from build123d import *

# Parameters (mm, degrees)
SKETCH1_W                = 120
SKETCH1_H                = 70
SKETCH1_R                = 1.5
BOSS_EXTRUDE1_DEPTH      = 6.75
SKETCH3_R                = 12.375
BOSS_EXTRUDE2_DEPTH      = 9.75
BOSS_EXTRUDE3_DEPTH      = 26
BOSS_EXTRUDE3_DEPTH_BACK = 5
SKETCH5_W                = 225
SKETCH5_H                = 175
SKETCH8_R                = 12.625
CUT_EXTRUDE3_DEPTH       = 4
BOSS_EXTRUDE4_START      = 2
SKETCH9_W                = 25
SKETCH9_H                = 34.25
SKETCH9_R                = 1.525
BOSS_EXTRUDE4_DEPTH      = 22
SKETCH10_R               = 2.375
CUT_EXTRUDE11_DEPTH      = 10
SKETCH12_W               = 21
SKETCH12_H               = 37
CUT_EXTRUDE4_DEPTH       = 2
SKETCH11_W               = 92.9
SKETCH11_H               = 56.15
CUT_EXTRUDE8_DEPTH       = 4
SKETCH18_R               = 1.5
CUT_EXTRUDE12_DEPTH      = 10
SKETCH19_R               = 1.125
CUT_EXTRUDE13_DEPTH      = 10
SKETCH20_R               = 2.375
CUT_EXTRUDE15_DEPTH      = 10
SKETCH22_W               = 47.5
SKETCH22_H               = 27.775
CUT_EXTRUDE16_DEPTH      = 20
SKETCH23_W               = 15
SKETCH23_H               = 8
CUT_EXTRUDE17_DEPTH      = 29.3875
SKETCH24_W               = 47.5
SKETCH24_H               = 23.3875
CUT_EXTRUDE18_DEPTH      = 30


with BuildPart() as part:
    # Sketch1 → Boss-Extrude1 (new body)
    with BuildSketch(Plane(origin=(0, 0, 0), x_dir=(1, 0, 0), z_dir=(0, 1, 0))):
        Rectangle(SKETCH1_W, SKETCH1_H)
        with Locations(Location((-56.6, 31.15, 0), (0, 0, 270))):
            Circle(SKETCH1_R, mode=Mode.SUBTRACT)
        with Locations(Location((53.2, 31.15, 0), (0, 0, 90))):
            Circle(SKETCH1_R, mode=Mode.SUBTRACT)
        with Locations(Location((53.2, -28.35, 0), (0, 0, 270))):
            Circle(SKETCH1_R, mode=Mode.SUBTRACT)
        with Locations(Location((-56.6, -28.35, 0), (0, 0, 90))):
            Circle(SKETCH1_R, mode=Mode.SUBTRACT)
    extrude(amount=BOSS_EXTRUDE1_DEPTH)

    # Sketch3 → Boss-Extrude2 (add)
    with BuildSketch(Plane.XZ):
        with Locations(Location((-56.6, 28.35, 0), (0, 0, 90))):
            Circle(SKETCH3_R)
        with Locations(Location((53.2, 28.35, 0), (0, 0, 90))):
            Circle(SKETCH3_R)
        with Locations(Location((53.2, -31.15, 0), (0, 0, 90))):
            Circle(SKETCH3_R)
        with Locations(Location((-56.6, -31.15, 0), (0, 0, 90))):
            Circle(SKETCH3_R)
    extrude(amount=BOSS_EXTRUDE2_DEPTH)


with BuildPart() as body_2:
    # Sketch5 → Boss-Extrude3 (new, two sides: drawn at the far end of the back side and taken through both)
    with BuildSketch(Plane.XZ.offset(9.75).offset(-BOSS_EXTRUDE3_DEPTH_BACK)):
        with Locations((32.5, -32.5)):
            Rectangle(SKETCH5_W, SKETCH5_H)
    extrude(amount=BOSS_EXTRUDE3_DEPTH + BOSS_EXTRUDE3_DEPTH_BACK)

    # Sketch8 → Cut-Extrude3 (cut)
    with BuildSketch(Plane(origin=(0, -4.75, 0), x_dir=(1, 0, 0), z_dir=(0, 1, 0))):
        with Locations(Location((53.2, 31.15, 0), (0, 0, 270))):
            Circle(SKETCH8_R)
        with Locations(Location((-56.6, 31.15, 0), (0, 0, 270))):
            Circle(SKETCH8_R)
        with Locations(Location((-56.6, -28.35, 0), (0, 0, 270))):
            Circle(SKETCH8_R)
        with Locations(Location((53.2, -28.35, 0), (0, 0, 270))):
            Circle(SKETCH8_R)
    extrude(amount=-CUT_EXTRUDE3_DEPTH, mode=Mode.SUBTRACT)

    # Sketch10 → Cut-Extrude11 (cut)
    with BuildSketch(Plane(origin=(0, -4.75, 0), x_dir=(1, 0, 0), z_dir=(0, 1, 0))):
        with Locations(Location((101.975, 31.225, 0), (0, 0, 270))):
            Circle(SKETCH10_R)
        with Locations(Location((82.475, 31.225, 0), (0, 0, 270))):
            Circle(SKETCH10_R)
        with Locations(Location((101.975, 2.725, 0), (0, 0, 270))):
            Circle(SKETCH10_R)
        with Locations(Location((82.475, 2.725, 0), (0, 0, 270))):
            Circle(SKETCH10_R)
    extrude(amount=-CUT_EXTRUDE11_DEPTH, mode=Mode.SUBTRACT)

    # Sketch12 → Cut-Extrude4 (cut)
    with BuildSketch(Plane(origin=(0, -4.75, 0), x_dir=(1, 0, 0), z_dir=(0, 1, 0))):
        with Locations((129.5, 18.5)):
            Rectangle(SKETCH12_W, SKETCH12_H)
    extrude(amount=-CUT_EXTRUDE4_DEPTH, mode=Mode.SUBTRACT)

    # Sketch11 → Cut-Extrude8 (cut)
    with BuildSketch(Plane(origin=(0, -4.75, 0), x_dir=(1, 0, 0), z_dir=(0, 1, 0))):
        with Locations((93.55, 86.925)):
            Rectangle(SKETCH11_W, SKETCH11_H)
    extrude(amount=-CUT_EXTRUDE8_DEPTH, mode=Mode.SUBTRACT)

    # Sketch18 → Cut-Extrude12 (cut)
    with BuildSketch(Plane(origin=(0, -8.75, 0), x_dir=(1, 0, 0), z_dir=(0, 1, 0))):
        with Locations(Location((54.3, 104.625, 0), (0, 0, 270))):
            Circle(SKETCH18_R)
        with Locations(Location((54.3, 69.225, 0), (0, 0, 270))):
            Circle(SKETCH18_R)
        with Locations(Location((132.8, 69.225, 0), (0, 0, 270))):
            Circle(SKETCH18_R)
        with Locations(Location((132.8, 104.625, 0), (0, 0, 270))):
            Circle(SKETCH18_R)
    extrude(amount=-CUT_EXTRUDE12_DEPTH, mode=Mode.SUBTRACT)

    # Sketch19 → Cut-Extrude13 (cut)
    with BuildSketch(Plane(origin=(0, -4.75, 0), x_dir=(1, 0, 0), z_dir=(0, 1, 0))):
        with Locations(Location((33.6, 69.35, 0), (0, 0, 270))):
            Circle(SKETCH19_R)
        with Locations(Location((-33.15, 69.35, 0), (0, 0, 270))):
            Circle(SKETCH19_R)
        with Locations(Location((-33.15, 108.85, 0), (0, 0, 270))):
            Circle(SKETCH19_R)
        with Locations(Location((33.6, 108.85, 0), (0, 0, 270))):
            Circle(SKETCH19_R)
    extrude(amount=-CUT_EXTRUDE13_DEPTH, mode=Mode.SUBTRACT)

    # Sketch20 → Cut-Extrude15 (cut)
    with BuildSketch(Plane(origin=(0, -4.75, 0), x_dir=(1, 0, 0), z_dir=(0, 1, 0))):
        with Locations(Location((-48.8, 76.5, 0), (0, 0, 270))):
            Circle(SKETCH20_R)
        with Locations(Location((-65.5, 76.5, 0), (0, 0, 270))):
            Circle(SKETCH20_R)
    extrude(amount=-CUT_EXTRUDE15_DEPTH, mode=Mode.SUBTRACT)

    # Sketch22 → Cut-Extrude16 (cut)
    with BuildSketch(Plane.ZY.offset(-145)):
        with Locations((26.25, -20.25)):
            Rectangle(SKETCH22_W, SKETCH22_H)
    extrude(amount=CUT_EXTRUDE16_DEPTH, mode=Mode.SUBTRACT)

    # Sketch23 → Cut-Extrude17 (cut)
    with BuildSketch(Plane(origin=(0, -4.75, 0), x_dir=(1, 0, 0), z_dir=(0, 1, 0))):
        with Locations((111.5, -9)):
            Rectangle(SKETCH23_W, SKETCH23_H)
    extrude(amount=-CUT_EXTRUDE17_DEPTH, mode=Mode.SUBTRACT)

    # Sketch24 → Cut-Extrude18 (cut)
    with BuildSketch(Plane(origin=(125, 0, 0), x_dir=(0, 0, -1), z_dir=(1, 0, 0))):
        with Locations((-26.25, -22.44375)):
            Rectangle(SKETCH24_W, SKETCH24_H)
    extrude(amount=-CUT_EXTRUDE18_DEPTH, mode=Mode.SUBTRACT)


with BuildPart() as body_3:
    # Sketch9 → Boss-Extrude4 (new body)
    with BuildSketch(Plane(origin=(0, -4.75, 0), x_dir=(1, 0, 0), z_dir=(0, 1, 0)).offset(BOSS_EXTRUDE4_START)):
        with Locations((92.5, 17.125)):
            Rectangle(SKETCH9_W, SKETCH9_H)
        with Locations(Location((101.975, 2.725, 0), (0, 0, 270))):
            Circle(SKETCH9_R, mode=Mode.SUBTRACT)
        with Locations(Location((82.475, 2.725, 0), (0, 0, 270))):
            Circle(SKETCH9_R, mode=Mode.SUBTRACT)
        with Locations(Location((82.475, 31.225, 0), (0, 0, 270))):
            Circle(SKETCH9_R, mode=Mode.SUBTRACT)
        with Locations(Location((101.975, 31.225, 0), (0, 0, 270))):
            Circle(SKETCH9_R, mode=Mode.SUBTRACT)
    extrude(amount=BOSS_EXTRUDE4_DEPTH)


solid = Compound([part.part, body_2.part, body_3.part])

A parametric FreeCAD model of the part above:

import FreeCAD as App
import Part
import Sketcher

V = App.Vector

doc = App.newDocument("Part")
body = doc.addObject("PartDesign::Body", "Body")

sketch1 = body.newObject("Sketcher::SketchObject", "Sketch")
sketch1.AttachmentSupport = (doc.getObject("XZ_Plane"), [""])
sketch1.MapMode = "FlatFace"
sketch1.addGeometry([
    Part.LineSegment(V(-60, -35, 0), V(-60, 35, 0)),
    Part.LineSegment(V(-60, 35, 0), V(60, 35, 0)),
    Part.LineSegment(V(60, 35, 0), V(60, -35, 0)),
    Part.LineSegment(V(60, -35, 0), V(-60, -35, 0)),
    Part.Circle(V(-56.6, 28.4, 0), V(0, 0, 1), 1.5),
    Part.Circle(V(53.2, 28.4, 0), V(0, 0, 1), 1.5),
    Part.Circle(V(-56.6, -31.1, 0), V(0, 0, 1), 1.5),
    Part.Circle(V(53.2, -31.1, 0), V(0, 0, 1), 1.5),
], False)
sketch1.addConstraint([
    Sketcher.Constraint("Coincident", 0, 2, 1, 1),
    Sketcher.Constraint("Coincident", 1, 2, 2, 1),
    Sketcher.Constraint("Coincident", 2, 2, 3, 1),
    Sketcher.Constraint("Coincident", 3, 2, 0, 1),
    Sketcher.Constraint("Vertical", 0),
    Sketcher.Constraint("Horizontal", 1),
    Sketcher.Constraint("Vertical", 2),
    Sketcher.Constraint("Horizontal", 3),
    Sketcher.Constraint("Equal", 4, 5),
    Sketcher.Constraint("Equal", 5, 6),
    Sketcher.Constraint("Equal", 6, 7),
    Sketcher.Constraint("Symmetric", 0, 2, 2, 2, -1, 1),
    Sketcher.Constraint("Horizontal", 4, 3, 5, 3),
    Sketcher.Constraint("Horizontal", 6, 3, 7, 3),
    Sketcher.Constraint("Vertical", 4, 3, 6, 3),
    Sketcher.Constraint("Vertical", 5, 3, 7, 3),
    Sketcher.Constraint("Diameter", 4, 3.0),
    Sketcher.Constraint("DistanceX", 1, 1, 1, 2, 120.0),
    Sketcher.Constraint("DistanceY", 0, 1, 0, 2, 70.0),
    Sketcher.Constraint("DistanceX", 4, 3, -1, 1, 56.6),
    Sketcher.Constraint("DistanceX", -1, 1, 5, 3, 53.2),
    Sketcher.Constraint("DistanceY", 6, 3, 4, 3, 59.5),
    Sketcher.Constraint("DistanceY", -1, 1, 4, 3, 28.35),
])
pad1 = body.newObject("PartDesign::Pad", "Pad")
pad1.Profile = sketch1
pad1.Length = 6.75
pad1.Reversed = True

sketch2 = body.newObject("Sketcher::SketchObject", "Sketch001")
sketch2.AttachmentSupport = (doc.getObject("XZ_Plane"), [""])
sketch2.MapMode = "FlatFace"
sketch2.addGeometry([
    Part.Circle(V(-57, 28, 0), V(0, 0, 1), 12),
    Part.Circle(V(53, 28, 0), V(0, 0, 1), 12),
    Part.Circle(V(53, -31, 0), V(0, 0, 1), 12),
    Part.Circle(V(-57, -31, 0), V(0, 0, 1), 12),
], False)
sketch2.addConstraint([
    Sketcher.Constraint("Equal", 0, 1),
    Sketcher.Constraint("Equal", 1, 2),
    Sketcher.Constraint("Equal", 2, 3),
    Sketcher.Constraint("Horizontal", 0, 3, 1, 3),
    Sketcher.Constraint("Horizontal", 2, 3, 3, 3),
    Sketcher.Constraint("Vertical", 1, 3, 2, 3),
    Sketcher.Constraint("Vertical", 0, 3, 3, 3),
    Sketcher.Constraint("Diameter", 0, 24.75),
    Sketcher.Constraint("DistanceX", 0, 3, -1, 1, 56.6),
    Sketcher.Constraint("DistanceX", -1, 1, 1, 3, 53.2),
    Sketcher.Constraint("DistanceY", 2, 3, 1, 3, 59.5),
    Sketcher.Constraint("DistanceY", -1, 1, 0, 3, 28.35),
])
pad2 = body.newObject("PartDesign::Pad", "Pad001")
pad2.Profile = sketch2
pad2.Length = 9.75
body2 = doc.addObject("PartDesign::Body", "Body001")

sketch3 = body2.newObject("Sketcher::SketchObject", "Sketch002")
sketch3.AttachmentSupport = (doc.getObject("XZ_Plane001"), [""])
sketch3.MapMode = "FlatFace"
sketch3.AttachmentOffset = App.Placement(V(0, 0, 9.75), App.Rotation())
sketch3.addGeometry([
    Part.LineSegment(V(-80, 55, 0), V(-80, -120, 0)),
    Part.LineSegment(V(-80, -120, 0), V(145, -120, 0)),
    Part.LineSegment(V(145, -120, 0), V(145, 55, 0)),
    Part.LineSegment(V(145, 55, 0), V(-80, 55, 0)),
], False)
sketch3.addConstraint([
    Sketcher.Constraint("Coincident", 0, 2, 1, 1),
    Sketcher.Constraint("Coincident", 1, 2, 2, 1),
    Sketcher.Constraint("Coincident", 2, 2, 3, 1),
    Sketcher.Constraint("Coincident", 3, 2, 0, 1),
    Sketcher.Constraint("Vertical", 0),
    Sketcher.Constraint("Horizontal", 1),
    Sketcher.Constraint("Vertical", 2),
    Sketcher.Constraint("Horizontal", 3),
    Sketcher.Constraint("DistanceX", 1, 1, 1, 2, 225.0),
    Sketcher.Constraint("DistanceY", 0, 2, 0, 1, 175.0),
    Sketcher.Constraint("DistanceX", 0, 2, -1, 1, 80.0),
    Sketcher.Constraint("DistanceY", 0, 2, -1, 1, 120.0),
])
pad3 = body2.newObject("PartDesign::Pad", "Pad002")
pad3.Profile = sketch3
pad3.Type = "TwoLengths"
pad3.Length = 26
pad3.Length2 = 5

sketch4 = body2.newObject("Sketcher::SketchObject", "Sketch003")
sketch4.AttachmentSupport = (doc.getObject("XZ_Plane001"), [""])
sketch4.MapMode = "FlatFace"
sketch4.AttachmentOffset = App.Placement(V(0, 0, 4.75), App.Rotation())
sketch4.addGeometry([
    Part.Circle(V(53, -31, 0), V(0, 0, 1), 13),
    Part.Circle(V(-57, -31, 0), V(0, 0, 1), 13),
    Part.Circle(V(-57, 28, 0), V(0, 0, 1), 13),
    Part.Circle(V(53, 28, 0), V(0, 0, 1), 13),
], False)
sketch4.addConstraint([
    Sketcher.Constraint("Equal", 0, 1),
    Sketcher.Constraint("Equal", 1, 2),
    Sketcher.Constraint("Equal", 2, 3),
    Sketcher.Constraint("Horizontal", 0, 3, 1, 3),
    Sketcher.Constraint("Horizontal", 2, 3, 3, 3),
    Sketcher.Constraint("Vertical", 1, 3, 2, 3),
    Sketcher.Constraint("Vertical", 0, 3, 3, 3),
    Sketcher.Constraint("Diameter", 0, 25.25),
    Sketcher.Constraint("DistanceX", -1, 1, 0, 3, 53.2),
    Sketcher.Constraint("DistanceX", 1, 3, -1, 1, 56.6),
    Sketcher.Constraint("DistanceY", 1, 3, 2, 3, 59.5),
    Sketcher.Constraint("DistanceY", 0, 3, -1, 1, 31.15),
])
pocket1 = body2.newObject("PartDesign::Pocket", "Pocket")
pocket1.Profile = sketch4
pocket1.Length = 4
pocket1.Reversed = True

sketch5 = body2.newObject("Sketcher::SketchObject", "Sketch004")
sketch5.AttachmentSupport = (doc.getObject("XZ_Plane001"), [""])
sketch5.MapMode = "FlatFace"
sketch5.AttachmentOffset = App.Placement(V(0, 0, 4.75), App.Rotation())
sketch5.addGeometry([
    Part.Circle(V(102, -31.2, 0), V(0, 0, 1), 2.4),
    Part.Circle(V(82.5, -31.2, 0), V(0, 0, 1), 2.4),
    Part.Circle(V(102, -2.7, 0), V(0, 0, 1), 2.4),
    Part.Circle(V(82.5, -2.7, 0), V(0, 0, 1), 2.4),
], False)
sketch5.addConstraint([
    Sketcher.Constraint("Equal", 0, 1),
    Sketcher.Constraint("Equal", 1, 2),
    Sketcher.Constraint("Equal", 2, 3),
    Sketcher.Constraint("Horizontal", 0, 3, 1, 3),
    Sketcher.Constraint("Horizontal", 2, 3, 3, 3),
    Sketcher.Constraint("Vertical", 0, 3, 2, 3),
    Sketcher.Constraint("Vertical", 1, 3, 3, 3),
    Sketcher.Constraint("Diameter", 0, 4.75),
    Sketcher.Constraint("DistanceX", 1, 3, 0, 3, 19.5),
    Sketcher.Constraint("DistanceY", 0, 3, 2, 3, 28.5),
    Sketcher.Constraint("DistanceX", -1, 1, 0, 3, 101.975),
    Sketcher.Constraint("DistanceY", 0, 3, -1, 1, 31.225),
])
pocket2 = body2.newObject("PartDesign::Pocket", "Pocket001")
pocket2.Profile = sketch5
pocket2.Length = 10
pocket2.Reversed = True

sketch6 = body2.newObject("Sketcher::SketchObject", "Sketch005")
sketch6.AttachmentSupport = (doc.getObject("XZ_Plane001"), [""])
sketch6.MapMode = "FlatFace"
sketch6.AttachmentOffset = App.Placement(V(0, 0, 4.75), App.Rotation())
sketch6.addGeometry([
    Part.LineSegment(V(119, -37, 0), V(119, 0, 0)),
    Part.LineSegment(V(119, 0, 0), V(140, 0, 0)),
    Part.LineSegment(V(140, 0, 0), V(140, -37, 0)),
    Part.LineSegment(V(140, -37, 0), V(119, -37, 0)),
], False)
sketch6.addConstraint([
    Sketcher.Constraint("Coincident", 0, 2, 1, 1),
    Sketcher.Constraint("Coincident", 1, 2, 2, 1),
    Sketcher.Constraint("Coincident", 2, 2, 3, 1),
    Sketcher.Constraint("Coincident", 3, 2, 0, 1),
    Sketcher.Constraint("Vertical", 0),
    Sketcher.Constraint("Horizontal", 1),
    Sketcher.Constraint("Vertical", 2),
    Sketcher.Constraint("Horizontal", 3),
    Sketcher.Constraint("PointOnObject", 0, 2, -1),
    Sketcher.Constraint("DistanceX", 1, 1, 1, 2, 21.0),
    Sketcher.Constraint("DistanceY", 0, 1, 0, 2, 37.0),
    Sketcher.Constraint("DistanceX", -1, 1, 0, 2, 119.0),
])
pocket3 = body2.newObject("PartDesign::Pocket", "Pocket002")
pocket3.Profile = sketch6
pocket3.Length = 2
pocket3.Reversed = True

sketch7 = body2.newObject("Sketcher::SketchObject", "Sketch006")
sketch7.AttachmentSupport = (doc.getObject("XZ_Plane001"), [""])
sketch7.MapMode = "FlatFace"
sketch7.AttachmentOffset = App.Placement(V(0, 0, 4.75), App.Rotation())
sketch7.addGeometry([
    Part.LineSegment(V(47, -115, 0), V(47, -59, 0)),
    Part.LineSegment(V(47, -59, 0), V(140, -59, 0)),
    Part.LineSegment(V(140, -59, 0), V(140, -115, 0)),
    Part.LineSegment(V(140, -115, 0), V(47, -115, 0)),
], False)
sketch7.addConstraint([
    Sketcher.Constraint("Coincident", 0, 2, 1, 1),
    Sketcher.Constraint("Coincident", 1, 2, 2, 1),
    Sketcher.Constraint("Coincident", 2, 2, 3, 1),
    Sketcher.Constraint("Coincident", 3, 2, 0, 1),
    Sketcher.Constraint("Vertical", 0),
    Sketcher.Constraint("Horizontal", 1),
    Sketcher.Constraint("Vertical", 2),
    Sketcher.Constraint("Horizontal", 3),
    Sketcher.Constraint("DistanceX", 1, 1, 1, 2, 92.9),
    Sketcher.Constraint("DistanceX", -1, 1, 1, 2, 140.0),
    Sketcher.Constraint("DistanceY", 2, 2, -1, 1, 115.0),
    Sketcher.Constraint("DistanceY", 0, 1, 0, 2, 56.15),
])
pocket4 = body2.newObject("PartDesign::Pocket", "Pocket003")
pocket4.Profile = sketch7
pocket4.Length = 4
pocket4.Reversed = True

sketch8 = body2.newObject("Sketcher::SketchObject", "Sketch007")
sketch8.AttachmentSupport = (doc.getObject("XZ_Plane001"), [""])
sketch8.MapMode = "FlatFace"
sketch8.AttachmentOffset = App.Placement(V(0, 0, 8.75), App.Rotation())
sketch8.addGeometry([
    Part.Circle(V(54.3, -104.6, 0), V(0, 0, 1), 1.5),
    Part.Circle(V(54.3, -69.2, 0), V(0, 0, 1), 1.5),
    Part.Circle(V(132.8, -69.2, 0), V(0, 0, 1), 1.5),
    Part.Circle(V(132.8, -104.6, 0), V(0, 0, 1), 1.5),
], False)
sketch8.addConstraint([
    Sketcher.Constraint("Equal", 0, 1),
    Sketcher.Constraint("Equal", 1, 2),
    Sketcher.Constraint("Equal", 2, 3),
    Sketcher.Constraint("Horizontal", 1, 3, 2, 3),
    Sketcher.Constraint("Horizontal", 0, 3, 3, 3),
    Sketcher.Constraint("Vertical", 0, 3, 1, 3),
    Sketcher.Constraint("Vertical", 2, 3, 3, 3),
    Sketcher.Constraint("Diameter", 0, 3.0),
    Sketcher.Constraint("DistanceX", -1, 1, 0, 3, 54.3),
    Sketcher.Constraint("DistanceX", -1, 1, 2, 3, 132.8),
    Sketcher.Constraint("DistanceY", 0, 3, 1, 3, 35.4),
    Sketcher.Constraint("DistanceY", 0, 3, -1, 1, 104.625),
])
pocket5 = body2.newObject("PartDesign::Pocket", "Pocket004")
pocket5.Profile = sketch8
pocket5.Length = 10
pocket5.Reversed = True

sketch9 = body2.newObject("Sketcher::SketchObject", "Sketch008")
sketch9.AttachmentSupport = (doc.getObject("XZ_Plane001"), [""])
sketch9.MapMode = "FlatFace"
sketch9.AttachmentOffset = App.Placement(V(0, 0, 4.75), App.Rotation())
sketch9.addGeometry([
    Part.Circle(V(33.6, -69.3, 0), V(0, 0, 1), 1.1),
    Part.Circle(V(-33.1, -69.3, 0), V(0, 0, 1), 1.1),
    Part.Circle(V(-33.1, -108.8, 0), V(0, 0, 1), 1.1),
    Part.Circle(V(33.6, -108.8, 0), V(0, 0, 1), 1.1),
], False)
sketch9.addConstraint([
    Sketcher.Constraint("Equal", 0, 1),
    Sketcher.Constraint("Equal", 1, 2),
    Sketcher.Constraint("Equal", 2, 3),
    Sketcher.Constraint("Horizontal", 0, 3, 1, 3),
    Sketcher.Constraint("Horizontal", 2, 3, 3, 3),
    Sketcher.Constraint("Vertical", 1, 3, 2, 3),
    Sketcher.Constraint("Vertical", 0, 3, 3, 3),
    Sketcher.Constraint("Diameter", 0, 2.25),
    Sketcher.Constraint("DistanceX", -1, 1, 0, 3, 33.6),
    Sketcher.Constraint("DistanceY", 2, 3, 1, 3, 39.5),
    Sketcher.Constraint("DistanceY", 0, 3, -1, 1, 69.35),
    Sketcher.Constraint("DistanceX", 1, 3, -1, 1, 33.15),
])
pocket6 = body2.newObject("PartDesign::Pocket", "Pocket005")
pocket6.Profile = sketch9
pocket6.Length = 10
pocket6.Reversed = True

sketch10 = body2.newObject("Sketcher::SketchObject", "Sketch009")
sketch10.AttachmentSupport = (doc.getObject("XZ_Plane001"), [""])
sketch10.MapMode = "FlatFace"
sketch10.AttachmentOffset = App.Placement(V(0, 0, 4.75), App.Rotation())
sketch10.addGeometry([
    Part.Circle(V(-48.8, -76.5, 0), V(0, 0, 1), 2.4),
    Part.Circle(V(-65.5, -76.5, 0), V(0, 0, 1), 2.4),
], False)
sketch10.addConstraint([
    Sketcher.Constraint("Equal", 0, 1),
    Sketcher.Constraint("Horizontal", 0, 3, 1, 3),
    Sketcher.Constraint("Diameter", 0, 4.75),
    Sketcher.Constraint("DistanceX", 0, 3, -1, 1, 48.8),
    Sketcher.Constraint("DistanceY", 0, 3, -1, 1, 76.5),
    Sketcher.Constraint("DistanceX", 1, 3, -1, 1, 65.5),
])
pocket7 = body2.newObject("PartDesign::Pocket", "Pocket006")
pocket7.Profile = sketch10
pocket7.Length = 10
pocket7.Reversed = True

sketch11 = body2.newObject("Sketcher::SketchObject", "Sketch010")
sketch11.AttachmentSupport = (doc.getObject("YZ_Plane001"), [""])
sketch11.MapMode = "FlatFace"
sketch11.AttachmentOffset = App.Placement(V(0, 0, 145), App.Rotation())
sketch11.addGeometry([
    Part.LineSegment(V(-6, 2, 0), V(-34, 2, 0)),
    Part.LineSegment(V(-34, 2, 0), V(-34, 50, 0)),
    Part.LineSegment(V(-34, 50, 0), V(-6, 50, 0)),
    Part.LineSegment(V(-6, 50, 0), V(-6, 2, 0)),
], False)
sketch11.addConstraint([
    Sketcher.Constraint("Coincident", 0, 2, 1, 1),
    Sketcher.Constraint("Coincident", 1, 2, 2, 1),
    Sketcher.Constraint("Coincident", 2, 2, 3, 1),
    Sketcher.Constraint("Coincident", 3, 2, 0, 1),
    Sketcher.Constraint("Horizontal", 0),
    Sketcher.Constraint("Vertical", 1),
    Sketcher.Constraint("Horizontal", 2),
    Sketcher.Constraint("Vertical", 3),
    Sketcher.Constraint("DistanceY", 1, 1, 1, 2, 47.5),
    Sketcher.Constraint("DistanceY", -1, 1, 1, 2, 50.0),
    Sketcher.Constraint("DistanceX", 0, 2, 0, 1, 27.775),
    Sketcher.Constraint("DistanceX", 0, 2, -1, 1, 34.1375),
])
pocket8 = body2.newObject("PartDesign::Pocket", "Pocket007")
pocket8.Profile = sketch11
pocket8.Length = 20

sketch12 = body2.newObject("Sketcher::SketchObject", "Sketch011")
sketch12.AttachmentSupport = (doc.getObject("XZ_Plane001"), [""])
sketch12.MapMode = "FlatFace"
sketch12.AttachmentOffset = App.Placement(V(0, 0, 4.75), App.Rotation())
sketch12.addGeometry([
    Part.LineSegment(V(104, 5, 0), V(104, 13, 0)),
    Part.LineSegment(V(104, 13, 0), V(119, 13, 0)),
    Part.LineSegment(V(119, 13, 0), V(119, 5, 0)),
    Part.LineSegment(V(119, 5, 0), V(104, 5, 0)),
], False)
sketch12.addConstraint([
    Sketcher.Constraint("Coincident", 0, 2, 1, 1),
    Sketcher.Constraint("Coincident", 1, 2, 2, 1),
    Sketcher.Constraint("Coincident", 2, 2, 3, 1),
    Sketcher.Constraint("Coincident", 3, 2, 0, 1),
    Sketcher.Constraint("Vertical", 0),
    Sketcher.Constraint("Horizontal", 1),
    Sketcher.Constraint("Vertical", 2),
    Sketcher.Constraint("Horizontal", 3),
    Sketcher.Constraint("DistanceX", 1, 1, 1, 2, 15.0),
    Sketcher.Constraint("DistanceY", 0, 1, 0, 2, 8.0),
    Sketcher.Constraint("DistanceX", -1, 1, 0, 2, 104.0),
    Sketcher.Constraint("DistanceY", -1, 1, 0, 2, 13.0),
])
pocket9 = body2.newObject("PartDesign::Pocket", "Pocket008")
pocket9.Profile = sketch12
pocket9.Length = 29.3875
pocket9.Reversed = True

sketch13 = body2.newObject("Sketcher::SketchObject", "Sketch012")
sketch13.AttachmentSupport = (doc.getObject("YZ_Plane001"), [""])
sketch13.MapMode = "FlatFace"
sketch13.AttachmentOffset = App.Placement(V(0, 0, 125), App.Rotation())
sketch13.addGeometry([
    Part.LineSegment(V(-11, 50, 0), V(-34, 50, 0)),
    Part.LineSegment(V(-34, 50, 0), V(-34, 2, 0)),
    Part.LineSegment(V(-34, 2, 0), V(-11, 2, 0)),
    Part.LineSegment(V(-11, 2, 0), V(-11, 50, 0)),
], False)
sketch13.addConstraint([
    Sketcher.Constraint("Coincident", 0, 2, 1, 1),
    Sketcher.Constraint("Coincident", 1, 2, 2, 1),
    Sketcher.Constraint("Coincident", 2, 2, 3, 1),
    Sketcher.Constraint("Coincident", 3, 2, 0, 1),
    Sketcher.Constraint("Horizontal", 0),
    Sketcher.Constraint("Vertical", 1),
    Sketcher.Constraint("Horizontal", 2),
    Sketcher.Constraint("Vertical", 3),
    Sketcher.Constraint("DistanceY", 1, 2, 1, 1, 47.5),
    Sketcher.Constraint("DistanceY", -1, 1, 0, 2, 50.0),
    Sketcher.Constraint("DistanceX", 2, 2, -1, 1, 10.75),
    Sketcher.Constraint("DistanceX", 0, 2, 0, 1, 23.3875),
])
pocket10 = body2.newObject("PartDesign::Pocket", "Pocket009")
pocket10.Profile = sketch13
pocket10.Length = 30
body3 = doc.addObject("PartDesign::Body", "Body002")

sketch14 = body3.newObject("Sketcher::SketchObject", "Sketch013")
sketch14.AttachmentSupport = (doc.getObject("XZ_Plane002"), [""])
sketch14.MapMode = "FlatFace"
sketch14.AttachmentOffset = App.Placement(V(0, 0, 2.75), App.Rotation())
sketch14.addGeometry([
    Part.LineSegment(V(80, -34.2, 0), V(80, 0, 0)),
    Part.LineSegment(V(80, 0, 0), V(105, 0, 0)),
    Part.LineSegment(V(105, 0, 0), V(105, -34.2, 0)),
    Part.LineSegment(V(105, -34.2, 0), V(80, -34.2, 0)),
    Part.Circle(V(82.5, -2.7, 0), V(0, 0, 1), 1.5),
    Part.Circle(V(102, -2.7, 0), V(0, 0, 1), 1.5),
    Part.Circle(V(82.5, -31.2, 0), V(0, 0, 1), 1.5),
    Part.Circle(V(102, -31.2, 0), V(0, 0, 1), 1.5),
], False)
sketch14.addConstraint([
    Sketcher.Constraint("Coincident", 0, 2, 1, 1),
    Sketcher.Constraint("Coincident", 1, 2, 2, 1),
    Sketcher.Constraint("Coincident", 2, 2, 3, 1),
    Sketcher.Constraint("Coincident", 3, 2, 0, 1),
    Sketcher.Constraint("Vertical", 0),
    Sketcher.Constraint("Horizontal", 1),
    Sketcher.Constraint("Vertical", 2),
    Sketcher.Constraint("Horizontal", 3),
    Sketcher.Constraint("Equal", 4, 5),
    Sketcher.Constraint("Equal", 5, 6),
    Sketcher.Constraint("Equal", 6, 7),
    Sketcher.Constraint("PointOnObject", 0, 2, -1),
    Sketcher.Constraint("Horizontal", 4, 3, 5, 3),
    Sketcher.Constraint("Horizontal", 6, 3, 7, 3),
    Sketcher.Constraint("Vertical", 4, 3, 6, 3),
    Sketcher.Constraint("Vertical", 5, 3, 7, 3),
    Sketcher.Constraint("Diameter", 4, 3.05),
    Sketcher.Constraint("DistanceX", 1, 1, 1, 2, 25.0),
    Sketcher.Constraint("DistanceX", -1, 1, 0, 2, 80.0),
    Sketcher.Constraint("DistanceY", 0, 1, 0, 2, 34.25),
    Sketcher.Constraint("DistanceX", 4, 3, 5, 3, 19.5),
    Sketcher.Constraint("DistanceY", 6, 3, 4, 3, 28.5),
    Sketcher.Constraint("DistanceX", -1, 1, 4, 3, 82.475),
    Sketcher.Constraint("DistanceY", 4, 3, -1, 1, 2.725),
])
pad4 = body3.newObject("PartDesign::Pad", "Pad003")
pad4.Profile = sketch14
pad4.Length = 22
pad4.Reversed = True

doc.recompute()
